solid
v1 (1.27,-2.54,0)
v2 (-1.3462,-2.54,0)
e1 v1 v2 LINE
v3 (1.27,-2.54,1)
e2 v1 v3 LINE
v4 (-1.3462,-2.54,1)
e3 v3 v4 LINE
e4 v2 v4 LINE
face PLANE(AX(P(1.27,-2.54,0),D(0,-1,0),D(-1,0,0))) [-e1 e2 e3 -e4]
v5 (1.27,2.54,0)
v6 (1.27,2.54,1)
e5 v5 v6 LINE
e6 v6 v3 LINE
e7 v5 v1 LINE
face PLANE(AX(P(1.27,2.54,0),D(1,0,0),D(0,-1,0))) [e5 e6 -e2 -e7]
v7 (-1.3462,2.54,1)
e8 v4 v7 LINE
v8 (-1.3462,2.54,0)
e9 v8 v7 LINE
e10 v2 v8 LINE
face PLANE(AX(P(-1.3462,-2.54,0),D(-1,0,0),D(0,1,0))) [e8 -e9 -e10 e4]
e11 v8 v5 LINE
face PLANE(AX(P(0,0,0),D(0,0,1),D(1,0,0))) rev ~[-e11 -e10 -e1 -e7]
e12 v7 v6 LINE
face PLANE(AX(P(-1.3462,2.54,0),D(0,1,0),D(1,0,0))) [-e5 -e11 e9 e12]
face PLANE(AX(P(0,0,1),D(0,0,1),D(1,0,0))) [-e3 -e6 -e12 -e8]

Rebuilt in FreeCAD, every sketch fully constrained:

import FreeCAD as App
import Part
import Sketcher
Q = App.Units.Quantity

doc = App.newDocument("Part")
body = doc.addObject("PartDesign::Body", "Body")

# Sketch on XY plane
sketch1 = body.newObject("Sketcher::SketchObject", "Sketch")
sketch1.AttachmentSupport = (doc.getObject("XY_Plane"), [""])
sketch1.MapMode = "FlatFace"
sketch1.addGeometry(Part.LineSegment(App.Vector(1.3, 2.5, 0), App.Vector(-1.3, 2.5, 0)), False)
sketch1.addGeometry(Part.LineSegment(App.Vector(-1.3, 2.5, 0), App.Vector(-1.3, -2.5, 0)), False)
sketch1.addGeometry(Part.LineSegment(App.Vector(-1.3, -2.5, 0), App.Vector(1.3, -2.5, 0)), False)
sketch1.addGeometry(Part.LineSegment(App.Vector(1.3, -2.5, 0), App.Vector(1.3, 2.5, 0)), False)
sketch1.addConstraint(Sketcher.Constraint("Coincident", 0, 2, 1, 1))
sketch1.addConstraint(Sketcher.Constraint("Coincident", 1, 2, 2, 1))
sketch1.addConstraint(Sketcher.Constraint("Coincident", 2, 2, 3, 1))
sketch1.addConstraint(Sketcher.Constraint("Coincident", 3, 2, 0, 1))
sketch1.addConstraint(Sketcher.Constraint("Horizontal", 0))
sketch1.addConstraint(Sketcher.Constraint("Vertical", 1))
sketch1.addConstraint(Sketcher.Constraint("Horizontal", 2))
sketch1.addConstraint(Sketcher.Constraint("Vertical", 3))
sketch1.addConstraint(Sketcher.Constraint("DistanceY", 1, 2, 1, 1, Q("0.2 in")))
sketch1.addConstraint(Sketcher.Constraint("DistanceY", -1, 1, 0, 2, Q("0.1 in")))
sketch1.addConstraint(Sketcher.Constraint("DistanceX", 0, 2, 0, 1, Q("0.103 in")))
sketch1.addConstraint(Sketcher.Constraint("DistanceX", -1, 1, 2, 2, Q("0.05 in")))
pad1 = body.newObject("PartDesign::Pad", "Pad")
pad1.Profile = sketch1
pad1.Length = 1

doc.recompute()
